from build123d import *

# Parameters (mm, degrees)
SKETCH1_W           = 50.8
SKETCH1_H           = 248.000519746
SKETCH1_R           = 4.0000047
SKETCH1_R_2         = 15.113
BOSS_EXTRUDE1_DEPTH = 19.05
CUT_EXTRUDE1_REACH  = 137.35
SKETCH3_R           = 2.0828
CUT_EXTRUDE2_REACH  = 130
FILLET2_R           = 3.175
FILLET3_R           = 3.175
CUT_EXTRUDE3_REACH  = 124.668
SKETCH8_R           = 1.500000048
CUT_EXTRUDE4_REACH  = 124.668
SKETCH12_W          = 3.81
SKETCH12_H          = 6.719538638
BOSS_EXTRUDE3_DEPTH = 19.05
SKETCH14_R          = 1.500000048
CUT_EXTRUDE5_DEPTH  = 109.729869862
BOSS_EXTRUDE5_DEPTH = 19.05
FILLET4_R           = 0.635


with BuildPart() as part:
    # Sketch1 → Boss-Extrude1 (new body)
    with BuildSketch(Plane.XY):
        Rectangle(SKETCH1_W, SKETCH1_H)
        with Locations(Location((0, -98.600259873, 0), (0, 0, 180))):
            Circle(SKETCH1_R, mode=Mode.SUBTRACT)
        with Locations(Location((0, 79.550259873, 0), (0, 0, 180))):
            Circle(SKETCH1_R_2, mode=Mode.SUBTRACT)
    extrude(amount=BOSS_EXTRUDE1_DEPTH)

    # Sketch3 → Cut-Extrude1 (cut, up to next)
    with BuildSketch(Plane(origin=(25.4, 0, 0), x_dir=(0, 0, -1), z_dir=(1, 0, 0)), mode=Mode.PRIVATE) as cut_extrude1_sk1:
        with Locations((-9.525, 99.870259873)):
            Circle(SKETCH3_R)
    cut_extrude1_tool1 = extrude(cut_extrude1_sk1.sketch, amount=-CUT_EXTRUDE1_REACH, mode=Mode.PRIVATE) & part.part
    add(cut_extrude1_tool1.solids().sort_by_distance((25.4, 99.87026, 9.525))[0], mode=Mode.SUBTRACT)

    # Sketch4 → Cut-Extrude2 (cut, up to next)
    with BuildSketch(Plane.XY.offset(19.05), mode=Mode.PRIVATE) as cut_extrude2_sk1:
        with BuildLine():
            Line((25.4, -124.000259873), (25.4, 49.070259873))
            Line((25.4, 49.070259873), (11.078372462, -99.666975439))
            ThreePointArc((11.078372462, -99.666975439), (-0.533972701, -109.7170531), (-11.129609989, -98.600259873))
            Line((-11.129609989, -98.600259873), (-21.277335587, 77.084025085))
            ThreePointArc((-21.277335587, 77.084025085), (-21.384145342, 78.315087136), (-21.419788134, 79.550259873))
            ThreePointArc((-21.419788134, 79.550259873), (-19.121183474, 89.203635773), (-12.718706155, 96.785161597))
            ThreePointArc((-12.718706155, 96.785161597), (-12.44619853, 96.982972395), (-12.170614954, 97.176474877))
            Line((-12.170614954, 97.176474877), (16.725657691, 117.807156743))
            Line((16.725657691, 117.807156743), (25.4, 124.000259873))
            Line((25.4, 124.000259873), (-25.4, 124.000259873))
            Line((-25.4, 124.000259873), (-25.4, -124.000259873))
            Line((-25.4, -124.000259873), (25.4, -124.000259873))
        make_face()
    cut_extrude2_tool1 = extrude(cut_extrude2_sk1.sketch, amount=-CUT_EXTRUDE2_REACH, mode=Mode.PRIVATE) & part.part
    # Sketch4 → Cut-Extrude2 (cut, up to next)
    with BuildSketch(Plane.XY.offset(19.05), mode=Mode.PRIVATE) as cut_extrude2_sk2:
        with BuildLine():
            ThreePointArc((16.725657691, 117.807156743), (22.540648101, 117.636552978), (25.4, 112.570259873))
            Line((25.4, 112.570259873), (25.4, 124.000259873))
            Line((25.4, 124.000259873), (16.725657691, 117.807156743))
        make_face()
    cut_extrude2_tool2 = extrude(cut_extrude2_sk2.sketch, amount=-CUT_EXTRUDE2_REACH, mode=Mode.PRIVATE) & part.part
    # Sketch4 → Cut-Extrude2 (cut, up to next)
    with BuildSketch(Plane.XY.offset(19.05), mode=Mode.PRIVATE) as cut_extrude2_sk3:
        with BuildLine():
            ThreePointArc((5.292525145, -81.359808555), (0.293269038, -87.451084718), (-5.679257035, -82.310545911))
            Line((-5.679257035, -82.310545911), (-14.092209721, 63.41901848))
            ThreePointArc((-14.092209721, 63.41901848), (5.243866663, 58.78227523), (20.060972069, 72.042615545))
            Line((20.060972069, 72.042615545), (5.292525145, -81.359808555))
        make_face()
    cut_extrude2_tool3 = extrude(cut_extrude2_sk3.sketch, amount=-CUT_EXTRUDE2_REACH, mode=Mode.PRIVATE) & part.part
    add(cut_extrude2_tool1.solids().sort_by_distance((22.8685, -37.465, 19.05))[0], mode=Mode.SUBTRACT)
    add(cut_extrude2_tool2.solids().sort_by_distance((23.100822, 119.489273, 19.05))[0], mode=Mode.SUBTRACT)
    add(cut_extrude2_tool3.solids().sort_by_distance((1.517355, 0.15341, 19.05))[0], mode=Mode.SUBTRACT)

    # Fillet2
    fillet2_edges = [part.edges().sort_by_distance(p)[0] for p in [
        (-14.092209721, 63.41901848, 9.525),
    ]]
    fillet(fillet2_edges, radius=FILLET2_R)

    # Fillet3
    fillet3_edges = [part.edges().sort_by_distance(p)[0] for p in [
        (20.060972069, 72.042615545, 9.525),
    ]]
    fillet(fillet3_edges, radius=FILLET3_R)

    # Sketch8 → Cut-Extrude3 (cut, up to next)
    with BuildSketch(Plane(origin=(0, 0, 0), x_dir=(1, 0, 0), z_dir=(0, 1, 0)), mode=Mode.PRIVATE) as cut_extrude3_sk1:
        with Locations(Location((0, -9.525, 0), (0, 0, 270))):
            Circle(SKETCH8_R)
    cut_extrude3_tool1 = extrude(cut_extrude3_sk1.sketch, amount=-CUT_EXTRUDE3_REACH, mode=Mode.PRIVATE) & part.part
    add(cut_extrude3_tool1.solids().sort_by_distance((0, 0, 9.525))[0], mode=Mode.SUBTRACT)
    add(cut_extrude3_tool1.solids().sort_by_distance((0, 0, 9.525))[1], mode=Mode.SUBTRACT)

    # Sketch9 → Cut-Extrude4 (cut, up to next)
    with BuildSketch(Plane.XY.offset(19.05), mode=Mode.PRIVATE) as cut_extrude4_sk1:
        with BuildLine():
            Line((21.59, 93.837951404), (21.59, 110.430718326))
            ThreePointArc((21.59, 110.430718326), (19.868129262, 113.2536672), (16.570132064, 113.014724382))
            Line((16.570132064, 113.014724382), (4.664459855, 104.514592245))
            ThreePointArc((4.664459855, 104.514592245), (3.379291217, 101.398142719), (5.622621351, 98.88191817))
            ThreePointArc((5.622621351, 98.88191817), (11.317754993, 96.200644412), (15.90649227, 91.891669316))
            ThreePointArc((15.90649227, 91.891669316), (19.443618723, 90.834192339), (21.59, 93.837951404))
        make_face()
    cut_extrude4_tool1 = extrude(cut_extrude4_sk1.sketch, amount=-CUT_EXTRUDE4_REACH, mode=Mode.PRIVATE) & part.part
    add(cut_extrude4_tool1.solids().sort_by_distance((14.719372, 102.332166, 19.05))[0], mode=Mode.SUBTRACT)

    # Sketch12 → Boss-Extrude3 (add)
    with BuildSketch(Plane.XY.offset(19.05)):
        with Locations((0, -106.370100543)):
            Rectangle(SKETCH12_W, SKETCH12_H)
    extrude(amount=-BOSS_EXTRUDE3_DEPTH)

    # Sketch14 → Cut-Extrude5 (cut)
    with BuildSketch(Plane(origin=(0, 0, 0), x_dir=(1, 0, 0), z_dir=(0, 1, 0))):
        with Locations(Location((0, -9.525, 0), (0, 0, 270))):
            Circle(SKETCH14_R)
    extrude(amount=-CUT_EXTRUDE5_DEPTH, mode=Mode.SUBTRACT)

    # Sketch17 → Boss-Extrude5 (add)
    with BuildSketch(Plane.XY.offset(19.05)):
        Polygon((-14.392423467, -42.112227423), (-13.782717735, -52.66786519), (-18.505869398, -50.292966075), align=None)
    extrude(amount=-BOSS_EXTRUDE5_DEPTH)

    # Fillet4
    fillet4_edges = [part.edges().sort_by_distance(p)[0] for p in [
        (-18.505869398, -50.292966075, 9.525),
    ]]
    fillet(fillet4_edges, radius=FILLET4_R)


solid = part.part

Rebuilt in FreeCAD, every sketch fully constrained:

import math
import FreeCAD as App
import Part
import Sketcher
from FreeCAD import Vector
Q = App.Units.Quantity


def edges_at(feature, points):
    """Names of the edges that pass closest to the given points."""
    edges = feature.Shape.Edges
    near = lambda p: min(range(len(edges)), key=lambda i: edges[i].distToShape(Part.Vertex(*p))[0])
    return sorted({f"Edge{near(p) + 1}" for p in points})


def add_polygon(sketch, points):
    """Adds a closed chain of lines whose ends are joined by coincident constraints."""
    first, n = sketch.GeometryCount, len(points)
    for a, b in zip(points, points[1:] + points[:1]):
        sketch.addGeometry(Part.LineSegment(App.Vector(*a, 0), App.Vector(*b, 0)), False)
    for i in range(n):
        sketch.addConstraint(Sketcher.Constraint("Coincident", first + i, 2, first + (i + 1) % n, 1))

doc = App.newDocument("Part")
body = doc.addObject("PartDesign::Body", "Body")

# Sketch on XY plane
sketch1 = body.newObject("Sketcher::SketchObject", "Sketch")
sketch1.AttachmentSupport = (doc.getObject("XY_Plane"), [""])
sketch1.MapMode = "FlatFace"
add_polygon(sketch1, [(-25.4, 124), (-25.4, -124), (25.4, -124), (25.4, 124)])  # lines 0-3
sketch1.addGeometry(Part.Circle(Vector(0, -98.6, 0), Vector(0, 0, 1), 4), False)  # 4
sketch1.addGeometry(Part.Circle(Vector(0, 79.6, 0), Vector(0, 0, 1), 15.1), False)  # 5
sketch1.addConstraint([
    Sketcher.Constraint("Vertical", 0),
    Sketcher.Constraint("Horizontal", 1),
    Sketcher.Constraint("Vertical", 2),
    Sketcher.Constraint("Horizontal", 3),
    Sketcher.Constraint("Symmetric", 0, 2, 2, 2, -1, 1),
    Sketcher.Constraint("PointOnObject", 4, 3, -2),
    Sketcher.Constraint("PointOnObject", 5, 3, -2),
    Sketcher.Constraint("Diameter", 5, Q("1.19 in")),
    Sketcher.Constraint("DistanceX", 1, 1, 1, 2, Q("2 in")),
    Sketcher.Constraint("DistanceY", 0, 2, 4, 3, Q("1 in")),
    Sketcher.Constraint("DistanceY", 5, 3, 2, 2, Q("1.75 in")),
    Sketcher.Constraint("Diameter", 4, 8.000009),
    Sketcher.Constraint("DistanceY", 0, 2, 0, 1, Q("9.7638 in")),
])
pad1 = body.newObject("PartDesign::Pad", "Pad")
pad1.Profile = sketch1
pad1.Length = Q("0.75 in")

# Sketch on YZ plane
sketch2 = body.newObject("Sketcher::SketchObject", "Sketch001")
sketch2.AttachmentSupport = (doc.getObject("YZ_Plane"), [""])
sketch2.MapMode = "FlatFace"
sketch2.AttachmentOffset = App.Placement(Vector(0, 0, 1 * 25.4), App.Rotation())
sketch2.addGeometry(Part.Circle(Vector(99.9, 9.5, 0), Vector(0, 0, 1), 2.1), False)
sketch2.addConstraint([
    Sketcher.Constraint("Diameter", 0, Q("0.164 in")),
    Sketcher.Constraint("DistanceY", -1, 1, 0, 3, Q("0.375 in")),
    Sketcher.Constraint("DistanceX", -1, 1, 0, 3, Q("3.9319 in")),
])
pocket1 = body.newObject("PartDesign::Pocket", "Pocket")
pocket1.Profile = sketch2
pocket1.Type = "UpToFirst"

# Sketch on XY plane
sketch3 = body.newObject("Sketcher::SketchObject", "Sketch002")
sketch3.AttachmentSupport = (doc.getObject("XY_Plane"), [""])
sketch3.MapMode = "FlatFace"
sketch3.AttachmentOffset = App.Placement(Vector(0, 0, 0.75 * 25.4), App.Rotation())
sketch3.addGeometry([
    Part.LineSegment(Vector(25.4, -124, 0), Vector(25.4, 49.1, 0)),  # 0
    Part.LineSegment(Vector(25.4, 49.1, 0), Vector(11.1, -99.7, 0)),  # 1
    Part.ArcOfCircle(Part.Circle(Vector(0, -98.6, 0), Vector(0, 0, 1), 11.1), math.radians(180), math.radians(355)),  # 2
    Part.LineSegment(Vector(-11.1, -98.6, 0), Vector(-21.3, 77.1, 0)),  # 3
    Part.ArcOfCircle(Part.Circle(Vector(0, 79.6, 0), Vector(0, 0, 1), 21.4), math.radians(-180), math.radians(-173.39)),  # 4
    Part.ArcOfCircle(Part.Circle(Vector(0, 79.6, 0), Vector(0, 0, 1), 21.4), math.radians(126), math.radians(180)),  # 5
    Part.ArcOfCircle(Part.Circle(Vector(0, 79.6, 0), Vector(0, 0, 1), 21.4), math.radians(124.62), math.radians(126.43)),  # 6
    Part.LineSegment(Vector(-12.2, 97.2, 0), Vector(16.7, 117.8, 0)),  # 7
    Part.LineSegment(Vector(16.7, 117.8, 0), Vector(25.4, 124, 0)),  # 8
    Part.LineSegment(Vector(25.4, 124, 0), Vector(-25.4, 124, 0)),  # 9
    Part.LineSegment(Vector(-25.4, 124, 0), Vector(-25.4, -124, 0)),  # 10
    Part.LineSegment(Vector(-25.4, -124, 0), Vector(25.4, -124, 0)),  # 11
], False)
sketch3.addConstraint([
    Sketcher.Constraint("Coincident", 0, 2, 1, 1),
    Sketcher.Constraint("Tangent", 1, 2, 2, 2),
    Sketcher.Constraint("Coincident", 2, 1, 3, 1),
    Sketcher.Constraint("Coincident", 3, 2, 4, 2),
    Sketcher.Constraint("Tangent", 4, 1, 5, 2),
    Sketcher.Constraint("Tangent", 5, 1, 6, 2),
    Sketcher.Constraint("Coincident", 6, 1, 7, 1),
    Sketcher.Constraint("Coincident", 7, 2, 8, 1),
    Sketcher.Constraint("Coincident", 8, 2, 9, 1),
    Sketcher.Constraint("Coincident", 9, 2, 10, 1),
    Sketcher.Constraint("Coincident", 10, 2, 11, 1),
    Sketcher.Constraint("Coincident", 11, 2, 0, 1),
    Sketcher.Constraint("Vertical", 0),
    Sketcher.Constraint("Horizontal", 9),
    Sketcher.Constraint("Vertical", 10),
    Sketcher.Constraint("Horizontal", 11),
    Sketcher.Constraint("Coincident", 6, 3, 4, 3),
    Sketcher.Constraint("Symmetric", 8, 2, 10, 2, -1, 1),
    Sketcher.Constraint("PointOnObject", 2, 3, -2),
    Sketcher.Constraint("PointOnObject", 4, 3, -2),
    Sketcher.Constraint("Parallel", 7, 8),
    Sketcher.Constraint("Horizontal", 5, 3, 4, 1),
    Sketcher.Constraint("Vertical", 0, 2, 8, 2),
    Sketcher.Constraint("DistanceX", 9, 2, 9, 1, Q("2 in")),
    Sketcher.Constraint("DistanceY", 10, 2, 2, 1, Q("1 in")),
    Sketcher.Constraint("DistanceY", 10, 2, 2, 3, Q("1 in")),
    Sketcher.Constraint("DistanceY", 0, 2, 4, 3, Q("1.2 in")),
    Sketcher.Constraint("DistanceY", 6, 3, 8, 2, Q("1.7499999 in")),
    Sketcher.Constraint("DistanceY", 0, 1, 0, 2, Q("6.8138 in")),
    Sketcher.Constraint("Radius", 2, 11.12961),
    Sketcher.Constraint("Radius", 4, 21.419788),
    Sketcher.Constraint("DistanceY", 4, 1, 5, 1, 17.234902),
    Sketcher.Constraint("Distance", 8, 10.658271),
    Sketcher.Constraint("DistanceX", 3, 2, 5, 1, 8.558629),
    Sketcher.Constraint("DistanceX", 5, 1, 6, 1, 0.548091),
])
pocket2 = body.newObject("PartDesign::Pocket", "Pocket001")
pocket2.Profile = sketch3
pocket2.Type = "UpToFirst"

# Sketch on XY plane
sketch4 = body.newObject("Sketcher::SketchObject", "Sketch003")
sketch4.AttachmentSupport = (doc.getObject("XY_Plane"), [""])
sketch4.MapMode = "FlatFace"
sketch4.AttachmentOffset = App.Placement(Vector(0, 0, 0.75 * 25.4), App.Rotation())
sketch4.addGeometry([
    Part.ArcOfCircle(Part.Circle(Vector(19, 113, 0), Vector(0, 0, 1), 6), math.radians(0), math.radians(118)),
    Part.LineSegment(Vector(25, 113, 0), Vector(25, 124, 0)),
    Part.LineSegment(Vector(25, 124, 0), Vector(17, 118, 0)),
], False)
sketch4.addConstraint([
    Sketcher.Constraint("Tangent", 0, 1, 1, 1),
    Sketcher.Constraint("Coincident", 1, 2, 2, 1),
    Sketcher.Constraint("Coincident", 2, 2, 0, 2),
    Sketcher.Constraint("Vertical", 1),
    Sketcher.Constraint("DistanceX", -1, 1, 0, 1, Q("1 in")),
    Sketcher.Constraint("DistanceY", 1, 1, 1, 2, Q("0.45 in")),
    Sketcher.Constraint("DistanceY", -1, 1, 0, 3, Q("4.4319 in")),
    Sketcher.Constraint("Radius", 0, 5.917988),
    Sketcher.Constraint("Distance", 2, 10.658271),
])
pocket3 = body.newObject("PartDesign::Pocket", "Pocket002")
pocket3.Profile = sketch4
pocket3.Type = "UpToFirst"

# Sketch on XY plane
sketch5 = body.newObject("Sketcher::SketchObject", "Sketch004")
sketch5.AttachmentSupport = (doc.getObject("XY_Plane"), [""])
sketch5.MapMode = "FlatFace"
sketch5.AttachmentOffset = App.Placement(Vector(0, 0, 0.75 * 25.4), App.Rotation())
sketch5.addGeometry([
    Part.ArcOfCircle(Part.Circle(Vector(0, -82, 0), Vector(0, 0, 1), 6), math.radians(-176), math.radians(6)),
    Part.LineSegment(Vector(5, -81, 0), Vector(20, 72, 0)),
    Part.ArcOfCircle(Part.Circle(Vector(0, 80, 0), Vector(0, 0, 1), 21), math.radians(-131), math.radians(-21)),
    Part.LineSegment(Vector(-14, 63, 0), Vector(-6, -82, 0)),
], False)
sketch5.addConstraint([
    Sketcher.Constraint("Coincident", 0, 2, 1, 1),
    Sketcher.Constraint("Coincident", 1, 2, 2, 2),
    Sketcher.Constraint("Coincident", 2, 1, 3, 1),
    Sketcher.Constraint("Coincident", 3, 2, 0, 1),
    Sketcher.Constraint("PointOnObject", 2, 3, -2),
    Sketcher.Constraint("Radius", 0, 5.507959),
    Sketcher.Constraint("Radius", 2, 21.419788),
    Sketcher.Constraint("DistanceY", -1, 1, 2, 3, Q("3.1319 in")),
    Sketcher.Constraint("Distance", 3, 145.972202),
    Sketcher.Constraint("DistanceX", 0, 3, -1, 1, 0.18223),
    Sketcher.Constraint("DistanceY", 0, 3, -1, 1, 81.963689),
    Sketcher.Constraint("DistanceY", 0, 2, -1, 1, 81.359809),
    Sketcher.Constraint("DistanceX", 2, 1, -1, 1, 14.09221),
    Sketcher.Constraint("DistanceX", 2, 1, 1, 2, 34.153182),
])
pocket4 = body.newObject("PartDesign::Pocket", "Pocket003")
pocket4.Profile = sketch5
pocket4.Type = "UpToFirst"
doc.recompute()

fillet = body.newObject("PartDesign::Fillet", "Fillet")
fillet.Base = (pocket4, edges_at(pocket4, [(-14.092, 63.419, 9.525)]))
fillet.Radius = Q("0.125 in")
doc.recompute()

fillet2 = body.newObject("PartDesign::Fillet", "Fillet001")
fillet2.Base = (fillet, edges_at(fillet, [(20.061, 72.043, 9.525)]))
fillet2.Radius = Q("0.125 in")

# Sketch on XZ plane
sketch6 = body.newObject("Sketcher::SketchObject", "Sketch005")
sketch6.AttachmentSupport = (doc.getObject("XZ_Plane"), [""])
sketch6.MapMode = "FlatFace"
sketch6.addGeometry(Part.Circle(Vector(0, 9.5, 0), Vector(0, 0, 1), 1.5), False)
sketch6.addConstraint([
    Sketcher.Constraint("PointOnObject", 0, 3, -2),
    Sketcher.Constraint("Diameter", 0, 3.0),
    Sketcher.Constraint("DistanceY", -1, 1, 0, 3, Q("0.375 in")),
])
pocket5 = body.newObject("PartDesign::Pocket", "Pocket004")
pocket5.Profile = sketch6
pocket5.Length = 94.600255
pocket5.Reversed = True
pocket6 = body.newObject("PartDesign::Pocket", "Pocket005")
pocket6.Profile = sketch6
pocket6.Length = 109.72987
pocket6.Reversed = True

# Sketch on XY plane
sketch7 = body.newObject("Sketcher::SketchObject", "Sketch006")
sketch7.AttachmentSupport = (doc.getObject("XY_Plane"), [""])
sketch7.MapMode = "FlatFace"
sketch7.AttachmentOffset = App.Placement(Vector(0, 0, 0.75 * 25.4), App.Rotation())
sketch7.addGeometry([
    Part.LineSegment(Vector(21.6, 93.8, 0), Vector(21.6, 110.4, 0)),  # 0
    Part.ArcOfCircle(Part.Circle(Vector(18.4, 110.4, 0), Vector(0, 0, 1), 3.2), math.radians(0), math.radians(126)),  # 1
    Part.LineSegment(Vector(16.6, 113, 0), Vector(4.7, 104.5, 0)),  # 2
    Part.ArcOfCircle(Part.Circle(Vector(6.5, 101.9, 0), Vector(0, 0, 1), 3.2), math.radians(126), math.radians(254)),  # 3
    Part.ArcOfCircle(Part.Circle(Vector(0, 79.6, 0), Vector(0, 0, 1), 20.1), math.radians(38), math.radians(74)),  # 4
    Part.ArcOfCircle(Part.Circle(Vector(18.4, 93.8, 0), Vector(0, 0, 1), 3.2), math.radians(-142), math.radians(0)),  # 5
], False)
sketch7.addConstraint([
    Sketcher.Constraint("Tangent", 0, 2, 1, 1),
    Sketcher.Constraint("Tangent", 1, 2, 2, 1),
    Sketcher.Constraint("Tangent", 2, 2, 3, 1),
    Sketcher.Constraint("Tangent", 3, 2, 4, 2),
    Sketcher.Constraint("Tangent", 4, 1, 5, 1),
    Sketcher.Constraint("Tangent", 5, 2, 0, 1),
    Sketcher.Constraint("Vertical", 0),
    Sketcher.Constraint("Equal", 1, 3),
    Sketcher.Constraint("Equal", 3, 5),
    Sketcher.Constraint("PointOnObject", 4, 3, -2),
    Sketcher.Constraint("Radius", 1, Q("0.125 in")),
    Sketcher.Constraint("DistanceX", -1, 1, 0, 2, Q("0.85 in")),
    Sketcher.Constraint("Radius", 4, 20.132732),
    Sketcher.Constraint("DistanceY", -1, 1, 4, 3, Q("3.1319 in")),
    Sketcher.Constraint("DistanceY", 3, 2, 1, 3, 11.5488),
    Sketcher.Constraint("DistanceY", 0, 1, 0, 2, 16.592767),
])
pocket7 = body.newObject("PartDesign::Pocket", "Pocket006")
pocket7.Profile = sketch7
pocket7.Type = "UpToFirst"

# Sketch on XY plane
sketch8 = body.newObject("Sketcher::SketchObject", "Sketch007")
sketch8.AttachmentSupport = (doc.getObject("XY_Plane"), [""])
sketch8.MapMode = "FlatFace"
sketch8.AttachmentOffset = App.Placement(Vector(0, 0, 0.75 * 25.4), App.Rotation())
add_polygon(sketch8, [(-1.9, -103), (-1.9, -109.7), (1.9, -109.7), (1.9, -103)])  # lines 0-3
sketch8.addConstraint([
    Sketcher.Constraint("Vertical", 0),
    Sketcher.Constraint("Horizontal", 1),
    Sketcher.Constraint("Vertical", 2),
    Sketcher.Constraint("Horizontal", 3),
    Sketcher.Constraint("DistanceX", 1, 1, 1, 2, Q("0.15 in")),
    Sketcher.Constraint("DistanceX", 0, 2, -1, 1, Q("0.075 in")),
    Sketcher.Constraint("DistanceY", 0, 2, 0, 1, 6.719539),
    Sketcher.Constraint("DistanceY", 0, 2, -1, 1, 109.72987),
])
pad2 = body.newObject("PartDesign::Pad", "Pad001")
pad2.Profile = sketch8
pad2.Length = Q("0.75 in")
pad2.Reversed = True

# Sketch on XZ plane
sketch9 = body.newObject("Sketcher::SketchObject", "Sketch008")
sketch9.AttachmentSupport = (doc.getObject("XZ_Plane"), [""])
sketch9.MapMode = "FlatFace"
sketch9.addGeometry(Part.Circle(Vector(0, 9.5, 0), Vector(0, 0, 1), 1.5), False)
sketch9.addConstraint([
    Sketcher.Constraint("PointOnObject", 0, 3, -2),
    Sketcher.Constraint("Diameter", 0, 3.0),
    Sketcher.Constraint("DistanceY", -1, 1, 0, 3, Q("0.375 in")),
])
pocket8 = body.newObject("PartDesign::Pocket", "Pocket007")
pocket8.Profile = sketch9
pocket8.Length = 109.72987
pocket8.Reversed = True

# Sketch on XY plane
sketch10 = body.newObject("Sketcher::SketchObject", "Sketch009")
sketch10.AttachmentSupport = (doc.getObject("XY_Plane"), [""])
sketch10.MapMode = "FlatFace"
sketch10.AttachmentOffset = App.Placement(Vector(0, 0, 0.75 * 25.4), App.Rotation())
add_polygon(sketch10, [(-13.782718, -52.667865), (-14.392423, -42.112227), (-18.505869, -50.292966)])  # lines 0-2
sketch10.addConstraint([
    Sketcher.Constraint("Perpendicular", 1, 2),
    Sketcher.Constraint("DistanceY", 2, 2, 1, 2, Q("0.0935 in")),
    Sketcher.Constraint("Distance", 0, 10.573232),
    Sketcher.Constraint("DistanceX", 1, 2, -1, 1, 18.505869),
    Sketcher.Constraint("DistanceY", 1, 2, 0, 2, 8.180739),
    Sketcher.Constraint("DistanceY", 0, 2, -1, 1, 42.112227),
])
pad3 = body.newObject("PartDesign::Pad", "Pad002")
pad3.Profile = sketch10
pad3.Length = Q("0.75 in")
pad3.Reversed = True
doc.recompute()

fillet3 = body.newObject("PartDesign::Fillet", "Fillet002")
fillet3.Base = (pad3, edges_at(pad3, [(-18.506, -50.293, 9.525)]))
fillet3.Radius = Q("0.025 in")

doc.recompute()
